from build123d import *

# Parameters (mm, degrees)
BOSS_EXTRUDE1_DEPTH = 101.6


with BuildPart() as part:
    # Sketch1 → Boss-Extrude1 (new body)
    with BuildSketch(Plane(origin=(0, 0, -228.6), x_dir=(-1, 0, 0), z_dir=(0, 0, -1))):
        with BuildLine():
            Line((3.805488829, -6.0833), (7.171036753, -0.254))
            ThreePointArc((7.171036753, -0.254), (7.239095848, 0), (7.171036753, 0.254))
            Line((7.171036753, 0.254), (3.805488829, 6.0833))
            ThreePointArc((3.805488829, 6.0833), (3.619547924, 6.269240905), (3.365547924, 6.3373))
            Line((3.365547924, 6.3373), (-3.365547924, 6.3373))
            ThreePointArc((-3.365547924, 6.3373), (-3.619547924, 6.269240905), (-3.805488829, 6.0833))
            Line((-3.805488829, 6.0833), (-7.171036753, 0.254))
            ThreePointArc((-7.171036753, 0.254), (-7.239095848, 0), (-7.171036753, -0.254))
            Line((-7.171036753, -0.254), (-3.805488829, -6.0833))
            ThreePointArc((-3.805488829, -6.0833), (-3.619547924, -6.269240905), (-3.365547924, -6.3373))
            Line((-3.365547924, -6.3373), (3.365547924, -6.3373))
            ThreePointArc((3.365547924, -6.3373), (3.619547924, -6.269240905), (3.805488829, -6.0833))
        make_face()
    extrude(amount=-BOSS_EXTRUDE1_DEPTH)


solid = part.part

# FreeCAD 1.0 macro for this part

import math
import FreeCAD as App
import Part
import Sketcher
from FreeCAD import Vector
Q = App.Units.Quantity

doc = App.newDocument("Part")
params = doc.addObject("Spreadsheet::Sheet", "Params")
for row, (alias, value) in enumerate([
    ("sketch1_radius", "0.02 in"),
    ("pad1_length", "4 in"),
], start=1):
    params.set(f"A{row}", alias)
    params.set(f"B{row}", "=" + value)
    params.setAlias(f"B{row}", alias)

body = doc.addObject("PartDesign::Body", "Body")

sketch1 = doc.addObject("Sketcher::SketchObject", "Sketch")
body.addObject(sketch1)
sketch1.AttachmentSupport = (doc.XY_Plane, [""])
sketch1.MapMode = "FlatFace"
sketch1.AttachmentOffset = App.Placement(Vector(0, 0, -9 * 25.4), App.Rotation())
sketch1.addGeometry([
    Part.LineSegment(Vector(-3.8, -6.1, 0), Vector(-7.2, -0.3, 0)),
    Part.ArcOfCircle(Part.Circle(Vector(-6.7, 0, 0), Vector(0, 0, 1), 0.5), math.radians(150), math.radians(210)),
    Part.LineSegment(Vector(-7.2, 0.3, 0), Vector(-3.8, 6.1, 0)),
    Part.ArcOfCircle(Part.Circle(Vector(-3.4, 5.8, 0), Vector(0, 0, 1), 0.5), math.radians(90), math.radians(150)),
    Part.LineSegment(Vector(-3.4, 6.3, 0), Vector(3.4, 6.3, 0)),
    Part.ArcOfCircle(Part.Circle(Vector(3.4, 5.8, 0), Vector(0, 0, 1), 0.5), math.radians(30), math.radians(90)),
    Part.LineSegment(Vector(3.8, 6.1, 0), Vector(7.2, 0.3, 0)),
    Part.ArcOfCircle(Part.Circle(Vector(6.7, 0, 0), Vector(0, 0, 1), 0.5), math.radians(-30), math.radians(30)),
    Part.LineSegment(Vector(7.2, -0.3, 0), Vector(3.8, -6.1, 0)),
    Part.ArcOfCircle(Part.Circle(Vector(3.4, -5.8, 0), Vector(0, 0, 1), 0.5), math.radians(-90), math.radians(-30)),
    Part.LineSegment(Vector(3.4, -6.3, 0), Vector(-3.4, -6.3, 0)),
    Part.ArcOfCircle(Part.Circle(Vector(-3.4, -5.8, 0), Vector(0, 0, 1), 0.5), math.radians(-150), math.radians(-90)),
], False)
sketch1.addConstraint([
    Sketcher.Constraint("Tangent", 0, 2, 1, 2),
    Sketcher.Constraint("Tangent", 1, 1, 2, 1),
    Sketcher.Constraint("Tangent", 2, 2, 3, 2),
    Sketcher.Constraint("Tangent", 3, 1, 4, 1),
    Sketcher.Constraint("Tangent", 4, 2, 5, 2),
    Sketcher.Constraint("Tangent", 5, 1, 6, 1),
    Sketcher.Constraint("Tangent", 6, 2, 7, 2),
    Sketcher.Constraint("Tangent", 7, 1, 8, 1),
    Sketcher.Constraint("Tangent", 8, 2, 9, 2),
    Sketcher.Constraint("Tangent", 9, 1, 10, 1),
    Sketcher.Constraint("Tangent", 10, 2, 11, 2),
    Sketcher.Constraint("Tangent", 11, 1, 0, 1),
    Sketcher.Constraint("Horizontal", 4),
    Sketcher.Constraint("Horizontal", 10),
    Sketcher.Constraint("Equal", 1, 3),
    Sketcher.Constraint("Equal", 3, 5),
    Sketcher.Constraint("Equal", 5, 7),
    Sketcher.Constraint("Equal", 7, 9),
    Sketcher.Constraint("Equal", 9, 11),
    Sketcher.Constraint("Symmetric", 1, 3, 7, 3, -1, 1),
    Sketcher.Constraint("Symmetric", 3, 3, 9, 3, -1, 1),
    Sketcher.Constraint("Symmetric", 2, 2, 5, 1, -2),
    Sketcher.Constraint("Parallel", 0, 6),
    Sketcher.Constraint("Radius", 1, Q("0.02 in")),
    Sketcher.Constraint("Angle", 0, Q("120 deg")),
    Sketcher.Constraint("DistanceY", 9, 3, 5, 3, Q("0.459 in")),
    Sketcher.Constraint("DistanceX", 4, 1, 4, 2, 6.731096),
])
sketch1.setExpression("Constraints[23]", "Params.sketch1_radius")
pad1 = doc.addObject("PartDesign::Pad", "Pad")
body.addObject(pad1)
pad1.Profile = sketch1
pad1.setExpression("Length", "Params.pad1_length")

doc.recompute()
